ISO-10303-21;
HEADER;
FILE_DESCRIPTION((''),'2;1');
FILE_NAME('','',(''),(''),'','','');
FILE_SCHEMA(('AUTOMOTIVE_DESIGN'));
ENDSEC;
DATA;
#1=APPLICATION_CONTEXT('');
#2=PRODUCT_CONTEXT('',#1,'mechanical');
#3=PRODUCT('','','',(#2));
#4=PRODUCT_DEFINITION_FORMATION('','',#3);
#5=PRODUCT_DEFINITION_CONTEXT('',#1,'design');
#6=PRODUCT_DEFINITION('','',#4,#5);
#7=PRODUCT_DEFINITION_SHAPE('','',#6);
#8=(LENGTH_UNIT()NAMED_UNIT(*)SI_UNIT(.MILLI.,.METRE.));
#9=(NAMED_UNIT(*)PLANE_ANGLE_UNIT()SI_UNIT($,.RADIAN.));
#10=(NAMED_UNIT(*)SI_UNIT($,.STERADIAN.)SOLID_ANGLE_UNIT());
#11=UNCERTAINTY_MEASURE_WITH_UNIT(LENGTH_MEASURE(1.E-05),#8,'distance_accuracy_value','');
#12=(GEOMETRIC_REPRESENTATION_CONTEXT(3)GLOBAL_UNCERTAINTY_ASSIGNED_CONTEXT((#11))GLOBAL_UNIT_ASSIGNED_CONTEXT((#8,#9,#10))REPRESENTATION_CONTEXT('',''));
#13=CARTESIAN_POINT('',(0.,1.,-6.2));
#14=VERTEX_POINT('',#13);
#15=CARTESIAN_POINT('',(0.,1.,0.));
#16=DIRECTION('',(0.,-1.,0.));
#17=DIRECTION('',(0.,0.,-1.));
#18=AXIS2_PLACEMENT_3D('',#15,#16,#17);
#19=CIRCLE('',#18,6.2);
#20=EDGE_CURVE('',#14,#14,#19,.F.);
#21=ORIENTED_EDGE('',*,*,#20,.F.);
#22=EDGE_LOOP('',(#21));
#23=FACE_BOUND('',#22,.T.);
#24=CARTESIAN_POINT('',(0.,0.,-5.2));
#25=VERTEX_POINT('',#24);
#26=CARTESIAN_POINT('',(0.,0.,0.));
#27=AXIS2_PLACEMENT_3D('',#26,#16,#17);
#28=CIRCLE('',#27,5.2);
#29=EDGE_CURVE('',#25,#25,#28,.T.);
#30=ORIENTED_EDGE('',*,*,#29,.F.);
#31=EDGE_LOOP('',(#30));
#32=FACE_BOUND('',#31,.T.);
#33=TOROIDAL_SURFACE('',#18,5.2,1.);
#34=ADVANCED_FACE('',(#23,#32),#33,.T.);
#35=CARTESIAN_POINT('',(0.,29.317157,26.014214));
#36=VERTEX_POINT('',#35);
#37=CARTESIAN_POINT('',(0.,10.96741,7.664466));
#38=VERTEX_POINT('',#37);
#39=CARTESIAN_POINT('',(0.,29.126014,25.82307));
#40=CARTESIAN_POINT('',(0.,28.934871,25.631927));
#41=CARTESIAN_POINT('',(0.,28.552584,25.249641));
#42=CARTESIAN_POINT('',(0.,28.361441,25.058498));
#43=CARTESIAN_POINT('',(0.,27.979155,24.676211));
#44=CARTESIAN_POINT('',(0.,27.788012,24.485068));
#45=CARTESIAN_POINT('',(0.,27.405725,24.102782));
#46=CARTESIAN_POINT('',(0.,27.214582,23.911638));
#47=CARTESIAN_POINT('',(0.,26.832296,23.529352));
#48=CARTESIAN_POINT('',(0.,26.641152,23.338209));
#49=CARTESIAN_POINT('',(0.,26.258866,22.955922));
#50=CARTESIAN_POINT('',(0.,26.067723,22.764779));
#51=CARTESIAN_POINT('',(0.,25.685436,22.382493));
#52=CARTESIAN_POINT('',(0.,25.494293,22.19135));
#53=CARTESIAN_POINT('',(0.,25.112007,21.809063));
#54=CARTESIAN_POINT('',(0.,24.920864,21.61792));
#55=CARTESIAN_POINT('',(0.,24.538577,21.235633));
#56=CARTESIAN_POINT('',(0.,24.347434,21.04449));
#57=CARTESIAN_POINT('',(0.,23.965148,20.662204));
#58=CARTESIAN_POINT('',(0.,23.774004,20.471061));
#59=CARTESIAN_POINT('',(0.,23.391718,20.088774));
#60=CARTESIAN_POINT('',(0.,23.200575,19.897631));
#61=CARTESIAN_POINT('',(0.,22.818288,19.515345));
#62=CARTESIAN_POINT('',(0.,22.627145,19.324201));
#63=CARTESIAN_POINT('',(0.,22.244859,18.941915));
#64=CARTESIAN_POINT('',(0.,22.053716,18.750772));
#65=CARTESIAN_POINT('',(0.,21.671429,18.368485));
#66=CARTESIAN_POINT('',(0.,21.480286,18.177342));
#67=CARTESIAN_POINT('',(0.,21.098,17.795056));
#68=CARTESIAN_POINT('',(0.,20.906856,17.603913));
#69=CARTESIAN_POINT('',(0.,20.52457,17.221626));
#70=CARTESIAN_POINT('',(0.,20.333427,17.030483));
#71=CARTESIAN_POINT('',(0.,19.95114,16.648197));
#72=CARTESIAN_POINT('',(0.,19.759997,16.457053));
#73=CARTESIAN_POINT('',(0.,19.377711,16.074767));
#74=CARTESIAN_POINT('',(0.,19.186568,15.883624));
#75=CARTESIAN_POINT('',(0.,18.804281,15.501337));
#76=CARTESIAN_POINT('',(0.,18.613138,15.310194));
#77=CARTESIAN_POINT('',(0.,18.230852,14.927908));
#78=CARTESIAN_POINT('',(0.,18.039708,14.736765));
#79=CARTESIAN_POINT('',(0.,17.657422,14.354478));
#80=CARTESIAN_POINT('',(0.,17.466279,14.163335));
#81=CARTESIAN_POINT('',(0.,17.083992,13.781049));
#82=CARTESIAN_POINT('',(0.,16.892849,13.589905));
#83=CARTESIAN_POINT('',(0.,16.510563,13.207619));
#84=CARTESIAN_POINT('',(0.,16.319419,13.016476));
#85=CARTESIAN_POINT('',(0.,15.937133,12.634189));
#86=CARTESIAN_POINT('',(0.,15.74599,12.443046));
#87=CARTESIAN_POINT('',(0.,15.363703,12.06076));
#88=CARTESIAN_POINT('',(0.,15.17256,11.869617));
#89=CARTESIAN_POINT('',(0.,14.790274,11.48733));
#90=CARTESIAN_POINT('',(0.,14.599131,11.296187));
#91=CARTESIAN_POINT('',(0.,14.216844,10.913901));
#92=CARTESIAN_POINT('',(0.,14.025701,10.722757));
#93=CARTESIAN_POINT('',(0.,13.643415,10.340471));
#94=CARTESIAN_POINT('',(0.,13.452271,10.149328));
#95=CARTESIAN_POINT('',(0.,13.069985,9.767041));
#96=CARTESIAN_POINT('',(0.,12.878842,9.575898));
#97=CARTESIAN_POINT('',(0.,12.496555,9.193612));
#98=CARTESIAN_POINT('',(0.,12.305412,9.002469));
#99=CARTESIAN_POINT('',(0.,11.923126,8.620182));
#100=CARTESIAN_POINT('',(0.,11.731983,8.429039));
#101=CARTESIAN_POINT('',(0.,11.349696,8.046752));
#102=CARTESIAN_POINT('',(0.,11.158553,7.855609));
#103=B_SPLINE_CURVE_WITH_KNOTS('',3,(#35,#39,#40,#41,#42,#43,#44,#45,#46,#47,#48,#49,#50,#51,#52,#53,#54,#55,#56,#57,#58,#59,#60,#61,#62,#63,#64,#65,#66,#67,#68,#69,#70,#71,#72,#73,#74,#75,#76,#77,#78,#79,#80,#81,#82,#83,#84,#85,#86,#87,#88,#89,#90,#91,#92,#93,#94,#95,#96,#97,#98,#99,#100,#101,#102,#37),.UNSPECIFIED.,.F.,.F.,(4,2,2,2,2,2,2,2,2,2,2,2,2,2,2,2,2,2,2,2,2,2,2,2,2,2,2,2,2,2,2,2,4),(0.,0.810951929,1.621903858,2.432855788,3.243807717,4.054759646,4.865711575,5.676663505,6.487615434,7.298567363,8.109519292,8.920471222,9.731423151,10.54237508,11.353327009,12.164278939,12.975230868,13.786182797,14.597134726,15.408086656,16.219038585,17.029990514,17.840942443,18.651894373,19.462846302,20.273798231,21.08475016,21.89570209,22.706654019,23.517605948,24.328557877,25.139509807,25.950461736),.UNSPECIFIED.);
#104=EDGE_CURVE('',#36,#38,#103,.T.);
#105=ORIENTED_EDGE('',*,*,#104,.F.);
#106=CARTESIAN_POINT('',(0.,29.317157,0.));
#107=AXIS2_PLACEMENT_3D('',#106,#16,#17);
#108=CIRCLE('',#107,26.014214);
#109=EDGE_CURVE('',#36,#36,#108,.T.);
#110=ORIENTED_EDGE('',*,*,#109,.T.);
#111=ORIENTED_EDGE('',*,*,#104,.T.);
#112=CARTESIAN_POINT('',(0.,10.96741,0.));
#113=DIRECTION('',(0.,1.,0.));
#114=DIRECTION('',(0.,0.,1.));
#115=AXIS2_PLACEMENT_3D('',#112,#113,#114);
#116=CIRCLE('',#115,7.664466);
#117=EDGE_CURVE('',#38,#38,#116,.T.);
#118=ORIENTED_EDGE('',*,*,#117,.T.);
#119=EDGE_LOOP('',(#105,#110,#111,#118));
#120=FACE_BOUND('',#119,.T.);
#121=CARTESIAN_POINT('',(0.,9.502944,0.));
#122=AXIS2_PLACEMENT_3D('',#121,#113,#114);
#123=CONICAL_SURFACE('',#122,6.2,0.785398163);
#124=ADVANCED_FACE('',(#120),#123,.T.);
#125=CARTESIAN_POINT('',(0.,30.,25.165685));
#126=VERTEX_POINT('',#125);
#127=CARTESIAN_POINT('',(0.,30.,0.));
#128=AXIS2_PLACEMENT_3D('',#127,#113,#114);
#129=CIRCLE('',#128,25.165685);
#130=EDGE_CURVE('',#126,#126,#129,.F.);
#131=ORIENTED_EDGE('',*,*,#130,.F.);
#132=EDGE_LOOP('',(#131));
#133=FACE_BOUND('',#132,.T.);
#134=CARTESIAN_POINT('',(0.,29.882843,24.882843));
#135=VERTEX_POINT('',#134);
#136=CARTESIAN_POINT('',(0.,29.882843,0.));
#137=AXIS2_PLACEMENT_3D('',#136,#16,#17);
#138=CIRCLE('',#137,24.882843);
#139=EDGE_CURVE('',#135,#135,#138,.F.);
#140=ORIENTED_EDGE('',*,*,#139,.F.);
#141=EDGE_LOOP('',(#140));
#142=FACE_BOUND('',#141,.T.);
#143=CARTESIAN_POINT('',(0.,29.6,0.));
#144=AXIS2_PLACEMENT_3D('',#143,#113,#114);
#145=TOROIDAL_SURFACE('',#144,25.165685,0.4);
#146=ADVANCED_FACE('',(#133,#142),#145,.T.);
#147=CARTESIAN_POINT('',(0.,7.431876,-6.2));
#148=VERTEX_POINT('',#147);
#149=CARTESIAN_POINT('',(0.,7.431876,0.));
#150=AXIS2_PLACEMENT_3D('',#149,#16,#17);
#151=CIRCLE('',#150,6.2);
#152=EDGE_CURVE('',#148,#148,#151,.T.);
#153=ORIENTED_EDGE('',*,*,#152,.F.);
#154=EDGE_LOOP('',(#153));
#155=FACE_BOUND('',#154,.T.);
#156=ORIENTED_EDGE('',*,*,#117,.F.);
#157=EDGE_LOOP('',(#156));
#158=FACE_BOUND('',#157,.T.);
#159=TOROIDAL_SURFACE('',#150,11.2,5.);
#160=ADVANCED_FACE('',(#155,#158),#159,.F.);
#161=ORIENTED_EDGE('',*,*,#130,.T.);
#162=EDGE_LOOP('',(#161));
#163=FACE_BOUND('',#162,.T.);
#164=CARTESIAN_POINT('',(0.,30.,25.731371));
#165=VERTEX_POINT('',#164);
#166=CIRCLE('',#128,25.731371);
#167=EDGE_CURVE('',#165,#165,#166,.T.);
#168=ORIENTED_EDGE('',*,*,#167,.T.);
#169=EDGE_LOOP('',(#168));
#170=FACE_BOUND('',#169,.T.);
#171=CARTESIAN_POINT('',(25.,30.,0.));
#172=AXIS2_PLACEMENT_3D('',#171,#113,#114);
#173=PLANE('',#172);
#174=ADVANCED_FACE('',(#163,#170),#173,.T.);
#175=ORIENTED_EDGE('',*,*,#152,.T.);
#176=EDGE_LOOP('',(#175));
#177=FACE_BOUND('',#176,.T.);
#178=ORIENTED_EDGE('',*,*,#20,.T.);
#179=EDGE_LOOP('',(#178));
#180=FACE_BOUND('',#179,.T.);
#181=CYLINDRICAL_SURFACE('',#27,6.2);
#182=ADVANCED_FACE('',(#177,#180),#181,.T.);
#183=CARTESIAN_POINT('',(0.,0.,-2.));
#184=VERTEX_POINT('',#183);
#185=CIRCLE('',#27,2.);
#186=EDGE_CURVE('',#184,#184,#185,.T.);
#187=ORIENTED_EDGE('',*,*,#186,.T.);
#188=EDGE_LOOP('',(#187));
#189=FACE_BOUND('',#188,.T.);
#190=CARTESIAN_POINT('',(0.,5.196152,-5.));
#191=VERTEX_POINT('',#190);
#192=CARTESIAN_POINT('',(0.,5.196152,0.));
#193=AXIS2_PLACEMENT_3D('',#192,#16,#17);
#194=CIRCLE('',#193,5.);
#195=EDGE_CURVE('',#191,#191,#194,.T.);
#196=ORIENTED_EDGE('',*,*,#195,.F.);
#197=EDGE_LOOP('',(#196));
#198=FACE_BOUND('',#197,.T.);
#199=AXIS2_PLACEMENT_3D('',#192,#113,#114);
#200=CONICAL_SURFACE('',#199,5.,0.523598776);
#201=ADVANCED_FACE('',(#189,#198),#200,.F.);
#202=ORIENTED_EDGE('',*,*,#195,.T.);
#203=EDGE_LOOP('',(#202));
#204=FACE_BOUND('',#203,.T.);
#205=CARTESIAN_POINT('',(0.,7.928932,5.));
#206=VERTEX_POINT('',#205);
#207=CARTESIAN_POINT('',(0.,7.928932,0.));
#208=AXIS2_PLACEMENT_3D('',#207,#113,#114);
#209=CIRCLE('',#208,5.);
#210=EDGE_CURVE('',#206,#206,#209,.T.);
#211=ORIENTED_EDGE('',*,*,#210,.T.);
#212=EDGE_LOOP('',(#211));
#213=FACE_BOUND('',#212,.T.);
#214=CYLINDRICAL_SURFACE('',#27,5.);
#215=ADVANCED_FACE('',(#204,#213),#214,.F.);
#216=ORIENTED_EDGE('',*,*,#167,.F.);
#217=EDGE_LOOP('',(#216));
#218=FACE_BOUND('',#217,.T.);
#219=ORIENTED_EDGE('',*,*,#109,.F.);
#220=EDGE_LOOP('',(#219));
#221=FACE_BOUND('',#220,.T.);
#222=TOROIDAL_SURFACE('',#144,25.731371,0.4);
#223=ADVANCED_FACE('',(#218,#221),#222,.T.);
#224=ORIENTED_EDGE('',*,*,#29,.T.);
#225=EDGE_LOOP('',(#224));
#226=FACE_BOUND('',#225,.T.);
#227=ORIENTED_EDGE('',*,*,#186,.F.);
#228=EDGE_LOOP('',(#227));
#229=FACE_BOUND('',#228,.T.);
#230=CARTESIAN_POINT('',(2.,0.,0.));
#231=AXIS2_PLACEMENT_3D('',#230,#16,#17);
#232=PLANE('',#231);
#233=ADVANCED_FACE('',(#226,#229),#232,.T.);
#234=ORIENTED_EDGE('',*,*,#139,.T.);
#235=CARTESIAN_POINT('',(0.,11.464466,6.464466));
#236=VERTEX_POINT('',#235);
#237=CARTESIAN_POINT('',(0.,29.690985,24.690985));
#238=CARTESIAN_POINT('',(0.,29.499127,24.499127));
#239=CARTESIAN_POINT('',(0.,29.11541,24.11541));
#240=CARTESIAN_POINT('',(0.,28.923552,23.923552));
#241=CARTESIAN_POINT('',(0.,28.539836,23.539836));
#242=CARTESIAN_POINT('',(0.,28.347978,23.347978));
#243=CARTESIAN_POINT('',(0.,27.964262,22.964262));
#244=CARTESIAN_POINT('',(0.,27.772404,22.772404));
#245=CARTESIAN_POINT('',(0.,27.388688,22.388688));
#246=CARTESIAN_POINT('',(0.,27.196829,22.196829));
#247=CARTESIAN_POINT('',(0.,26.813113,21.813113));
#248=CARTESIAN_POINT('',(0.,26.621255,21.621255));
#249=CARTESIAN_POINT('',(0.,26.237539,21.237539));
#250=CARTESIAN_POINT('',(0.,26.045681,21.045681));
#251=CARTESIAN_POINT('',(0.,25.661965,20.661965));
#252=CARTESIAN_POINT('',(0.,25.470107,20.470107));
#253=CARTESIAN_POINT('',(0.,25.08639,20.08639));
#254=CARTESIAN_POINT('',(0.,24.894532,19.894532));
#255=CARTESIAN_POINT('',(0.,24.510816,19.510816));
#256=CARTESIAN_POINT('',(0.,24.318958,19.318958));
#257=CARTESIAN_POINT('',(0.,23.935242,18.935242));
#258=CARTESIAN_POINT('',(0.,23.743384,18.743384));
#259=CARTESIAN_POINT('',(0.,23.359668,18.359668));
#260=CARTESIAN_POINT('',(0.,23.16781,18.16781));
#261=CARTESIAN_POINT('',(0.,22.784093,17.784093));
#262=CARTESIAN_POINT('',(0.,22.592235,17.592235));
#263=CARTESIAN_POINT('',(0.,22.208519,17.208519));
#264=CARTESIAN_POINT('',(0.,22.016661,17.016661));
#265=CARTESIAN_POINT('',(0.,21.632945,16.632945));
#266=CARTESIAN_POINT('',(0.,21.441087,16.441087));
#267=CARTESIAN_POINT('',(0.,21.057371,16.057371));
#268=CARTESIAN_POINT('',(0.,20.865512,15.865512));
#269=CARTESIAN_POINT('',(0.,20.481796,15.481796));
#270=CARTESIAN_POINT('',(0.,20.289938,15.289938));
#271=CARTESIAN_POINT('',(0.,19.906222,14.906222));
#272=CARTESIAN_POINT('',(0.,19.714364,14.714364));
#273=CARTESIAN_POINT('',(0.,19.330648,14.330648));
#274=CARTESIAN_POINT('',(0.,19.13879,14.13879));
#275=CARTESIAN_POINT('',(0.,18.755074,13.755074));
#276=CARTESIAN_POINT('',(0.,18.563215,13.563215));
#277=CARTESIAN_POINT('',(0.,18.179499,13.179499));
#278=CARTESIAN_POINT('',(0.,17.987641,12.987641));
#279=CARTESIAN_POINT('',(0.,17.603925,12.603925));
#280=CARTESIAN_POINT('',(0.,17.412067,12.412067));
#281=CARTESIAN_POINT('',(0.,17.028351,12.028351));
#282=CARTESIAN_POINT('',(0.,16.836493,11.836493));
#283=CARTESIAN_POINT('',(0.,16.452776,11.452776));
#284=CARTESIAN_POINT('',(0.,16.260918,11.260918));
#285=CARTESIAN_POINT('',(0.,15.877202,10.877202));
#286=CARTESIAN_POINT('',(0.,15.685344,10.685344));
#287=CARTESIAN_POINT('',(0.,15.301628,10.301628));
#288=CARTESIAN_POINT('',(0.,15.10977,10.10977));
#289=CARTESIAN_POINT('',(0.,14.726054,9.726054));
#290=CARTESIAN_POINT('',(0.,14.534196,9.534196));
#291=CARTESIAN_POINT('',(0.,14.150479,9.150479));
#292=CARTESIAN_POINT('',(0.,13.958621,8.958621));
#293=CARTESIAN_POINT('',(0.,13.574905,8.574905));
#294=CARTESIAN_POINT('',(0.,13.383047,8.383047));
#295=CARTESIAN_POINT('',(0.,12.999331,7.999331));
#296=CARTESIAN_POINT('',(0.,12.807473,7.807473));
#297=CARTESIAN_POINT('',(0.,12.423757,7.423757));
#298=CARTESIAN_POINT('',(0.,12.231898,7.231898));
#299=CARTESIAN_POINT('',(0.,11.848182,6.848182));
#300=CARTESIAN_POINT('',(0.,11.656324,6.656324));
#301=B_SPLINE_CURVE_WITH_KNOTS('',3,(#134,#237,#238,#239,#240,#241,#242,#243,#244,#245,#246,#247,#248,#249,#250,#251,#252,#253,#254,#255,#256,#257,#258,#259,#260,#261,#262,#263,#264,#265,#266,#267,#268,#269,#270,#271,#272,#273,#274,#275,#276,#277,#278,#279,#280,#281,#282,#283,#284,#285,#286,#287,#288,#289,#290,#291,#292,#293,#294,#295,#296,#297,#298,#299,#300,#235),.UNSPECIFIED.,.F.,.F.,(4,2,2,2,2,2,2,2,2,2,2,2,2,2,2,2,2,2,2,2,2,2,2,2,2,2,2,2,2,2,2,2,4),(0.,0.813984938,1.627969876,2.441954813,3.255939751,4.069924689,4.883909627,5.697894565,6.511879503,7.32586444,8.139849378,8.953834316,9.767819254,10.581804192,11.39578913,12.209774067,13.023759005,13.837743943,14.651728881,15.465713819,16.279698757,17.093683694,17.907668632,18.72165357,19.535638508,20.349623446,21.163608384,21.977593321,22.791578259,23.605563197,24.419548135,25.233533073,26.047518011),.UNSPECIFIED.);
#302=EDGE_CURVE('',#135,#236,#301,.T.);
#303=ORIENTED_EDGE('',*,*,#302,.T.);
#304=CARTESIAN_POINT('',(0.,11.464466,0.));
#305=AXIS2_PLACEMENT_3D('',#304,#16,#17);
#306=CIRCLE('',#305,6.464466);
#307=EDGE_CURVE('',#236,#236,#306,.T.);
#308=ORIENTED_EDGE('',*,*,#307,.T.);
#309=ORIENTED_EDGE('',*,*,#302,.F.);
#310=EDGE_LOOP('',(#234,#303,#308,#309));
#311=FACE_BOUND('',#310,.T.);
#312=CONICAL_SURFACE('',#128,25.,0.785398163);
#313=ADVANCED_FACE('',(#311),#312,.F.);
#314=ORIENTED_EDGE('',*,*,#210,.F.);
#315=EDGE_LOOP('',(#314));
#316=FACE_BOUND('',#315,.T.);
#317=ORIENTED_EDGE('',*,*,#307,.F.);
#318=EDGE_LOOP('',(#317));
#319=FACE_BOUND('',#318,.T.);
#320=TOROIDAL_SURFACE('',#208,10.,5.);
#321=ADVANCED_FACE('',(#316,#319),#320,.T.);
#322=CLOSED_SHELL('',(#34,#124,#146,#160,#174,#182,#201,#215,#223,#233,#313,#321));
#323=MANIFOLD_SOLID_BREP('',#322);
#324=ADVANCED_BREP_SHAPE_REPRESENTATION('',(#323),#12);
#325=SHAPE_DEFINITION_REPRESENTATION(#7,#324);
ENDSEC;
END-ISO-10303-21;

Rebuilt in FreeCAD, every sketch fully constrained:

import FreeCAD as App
import Part
import Sketcher
from FreeCAD import Vector
Q = App.Units.Quantity


def edges_at(feature, points):
    """Names of the edges that pass closest to the given points."""
    edges = feature.Shape.Edges
    near = lambda p: min(range(len(edges)), key=lambda i: edges[i].distToShape(Part.Vertex(*p))[0])
    return sorted({f"Edge{near(p) + 1}" for p in points})

doc = App.newDocument("Part")
body = doc.addObject("PartDesign::Body", "Body")

sketch1 = body.newObject("Sketcher::SketchObject", "Sketch")
sketch1.AttachmentSupport = (doc.getObject("XY_Plane"), [""])
sketch1.MapMode = "FlatFace"
sketch1.addGeometry([
    Part.LineSegment(Vector(5, 10, 0), Vector(5, 5.2, 0)),
    Part.LineSegment(Vector(5, 5.2, 0), Vector(2, 0, 0)),
    Part.LineSegment(Vector(2, 0, 0), Vector(6.2, 0, 0)),
    Part.LineSegment(Vector(6.2, 0, 0), Vector(6.2, 9.5, 0)),
    Part.LineSegment(Vector(6.2, 9.5, 0), Vector(26.7, 30, 0)),
    Part.LineSegment(Vector(26.7, 30, 0), Vector(25, 30, 0)),
    Part.LineSegment(Vector(25, 30, 0), Vector(5, 10, 0)),
], False)
sketch1.addConstraint([
    Sketcher.Constraint("Coincident", 0, 2, 1, 1),
    Sketcher.Constraint("Coincident", 1, 2, 2, 1),
    Sketcher.Constraint("Coincident", 2, 2, 3, 1),
    Sketcher.Constraint("Coincident", 3, 2, 4, 1),
    Sketcher.Constraint("Coincident", 4, 2, 5, 1),
    Sketcher.Constraint("Coincident", 5, 2, 6, 1),
    Sketcher.Constraint("Coincident", 6, 2, 0, 1),
    Sketcher.Constraint("Vertical", 0),
    Sketcher.Constraint("Horizontal", 2),
    Sketcher.Constraint("Vertical", 3),
    Sketcher.Constraint("Horizontal", 5),
    Sketcher.Constraint("PointOnObject", 1, 2, -1),
    Sketcher.Constraint("Parallel", 4, 6),
    Sketcher.Constraint("Angle", 1, Q("-120 deg")),
    Sketcher.Constraint("Angle", 4, Q("45 deg")),
    Sketcher.Constraint("Distance", 1, 6.0),
    Sketcher.Constraint("DistanceX", 2, 1, 2, 2, 4.2),
    Sketcher.Constraint("DistanceX", -1, 1, 0, 2, 5.0),
    Sketcher.Constraint("DistanceY", -1, 1, 4, 2, 30.0),
    Sketcher.Constraint("DistanceX", -1, 1, 5, 2, 25.0),
    Sketcher.Constraint("DistanceX", 5, 2, 5, 1, 1.697056),
])
revolution = body.newObject("PartDesign::Revolution", "Revolution")
revolution.Profile = sketch1
revolution.ReferenceAxis = (sketch1, ["V_Axis"])
revolution.Angle = 360
doc.recompute()

fillet = body.newObject("PartDesign::Fillet", "Fillet")
fillet.Base = (revolution, edges_at(revolution, [(0, 9.503, 6.2), (0, 10, 5)]))
fillet.Radius = 5
doc.recompute()

fillet2 = body.newObject("PartDesign::Fillet", "Fillet001")
fillet2.Base = (fillet, edges_at(fillet, [(0, 30, 26.697), (0, 30, 25)]))
fillet2.Radius = 0.4
doc.recompute()

fillet3 = body.newObject("PartDesign::Fillet", "Fillet002")
fillet3.Base = (fillet2, edges_at(fillet2, [(0, 0, 6.2)]))
fillet3.Radius = 1

doc.recompute()
